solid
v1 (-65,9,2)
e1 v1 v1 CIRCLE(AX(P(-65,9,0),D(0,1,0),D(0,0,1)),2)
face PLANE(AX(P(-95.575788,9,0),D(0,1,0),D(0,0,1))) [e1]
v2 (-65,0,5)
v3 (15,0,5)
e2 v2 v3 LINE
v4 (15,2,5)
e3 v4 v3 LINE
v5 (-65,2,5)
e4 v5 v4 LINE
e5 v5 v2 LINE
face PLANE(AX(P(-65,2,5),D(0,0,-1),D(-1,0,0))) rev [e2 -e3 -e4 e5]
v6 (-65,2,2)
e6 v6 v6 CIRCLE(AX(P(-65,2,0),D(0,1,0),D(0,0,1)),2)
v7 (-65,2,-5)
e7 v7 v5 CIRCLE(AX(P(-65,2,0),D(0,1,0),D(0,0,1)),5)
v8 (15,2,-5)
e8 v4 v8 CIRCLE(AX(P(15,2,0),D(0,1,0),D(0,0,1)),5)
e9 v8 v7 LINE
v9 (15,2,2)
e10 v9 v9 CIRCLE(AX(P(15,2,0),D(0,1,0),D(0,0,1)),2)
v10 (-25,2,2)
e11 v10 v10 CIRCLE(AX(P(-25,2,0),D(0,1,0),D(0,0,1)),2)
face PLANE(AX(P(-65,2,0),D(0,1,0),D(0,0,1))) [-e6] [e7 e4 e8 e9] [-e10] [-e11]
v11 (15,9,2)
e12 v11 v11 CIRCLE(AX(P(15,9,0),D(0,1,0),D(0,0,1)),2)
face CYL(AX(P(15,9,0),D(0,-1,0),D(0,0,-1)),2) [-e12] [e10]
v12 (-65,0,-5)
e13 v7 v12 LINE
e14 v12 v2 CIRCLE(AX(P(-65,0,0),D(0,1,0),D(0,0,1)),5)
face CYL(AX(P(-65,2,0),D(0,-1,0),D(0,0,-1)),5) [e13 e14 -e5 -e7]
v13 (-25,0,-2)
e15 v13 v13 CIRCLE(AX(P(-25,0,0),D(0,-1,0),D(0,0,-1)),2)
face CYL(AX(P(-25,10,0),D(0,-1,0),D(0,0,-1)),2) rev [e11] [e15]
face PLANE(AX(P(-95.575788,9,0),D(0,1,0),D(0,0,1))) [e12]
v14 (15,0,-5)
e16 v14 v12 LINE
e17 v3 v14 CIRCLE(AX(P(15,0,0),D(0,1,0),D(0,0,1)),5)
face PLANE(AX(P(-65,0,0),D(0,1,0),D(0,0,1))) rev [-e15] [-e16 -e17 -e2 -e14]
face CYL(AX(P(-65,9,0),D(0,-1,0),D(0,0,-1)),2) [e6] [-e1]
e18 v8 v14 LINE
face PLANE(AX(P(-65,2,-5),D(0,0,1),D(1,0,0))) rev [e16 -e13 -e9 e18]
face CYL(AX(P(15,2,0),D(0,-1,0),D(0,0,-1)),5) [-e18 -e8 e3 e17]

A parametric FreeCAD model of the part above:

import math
import FreeCAD as App
import Part
import Sketcher

V = App.Vector
Q = App.Units.Quantity

doc = App.newDocument("Part")
params = doc.addObject("Spreadsheet::Sheet", "Params")
for row, (alias, value) in enumerate([
    ("sketch1_radius", "5 mm"),
    ("sketch1_width", "80 mm"),
    ("pad1_length", "2 mm"),
    ("sketch2_diameter", "4 mm"),
    ("pad2_length", "7 mm"),
    ("sketch3_radius", "2 mm"),
    ("pocket1_length", "10 mm"),
], start=1):
    params.set(f"A{row}", alias)
    params.set(f"B{row}", "=" + value)
    params.setAlias(f"B{row}", alias)

body = doc.addObject("PartDesign::Body", "Body")

# Sketch on XZ plane
sketch1 = body.newObject("Sketcher::SketchObject", "Sketch")
sketch1.AttachmentSupport = (doc.getObject("XZ_Plane"), [""])
sketch1.MapMode = "FlatFace"
sketch1.addGeometry([
    Part.LineSegment(V(15, -5, 0), V(-65, -5, 0)),
    Part.ArcOfCircle(Part.Circle(V(-65, 0, 0), V(0, 0, 1), 5), math.radians(90), math.radians(270)),
    Part.LineSegment(V(-65, 5, 0), V(15, 5, 0)),
    Part.ArcOfCircle(Part.Circle(V(15, 0, 0), V(0, 0, 1), 5), math.radians(-90), math.radians(90)),
], False)
sketch1.addConstraint([
    Sketcher.Constraint("Tangent", 0, 2, 1, 2),
    Sketcher.Constraint("Tangent", 1, 1, 2, 1),
    Sketcher.Constraint("Tangent", 2, 2, 3, 2),
    Sketcher.Constraint("Tangent", 3, 1, 0, 1),
    Sketcher.Constraint("Horizontal", 0),
    Sketcher.Constraint("Horizontal", 2),
    Sketcher.Constraint("PointOnObject", 1, 3, -1),
    Sketcher.Constraint("Radius", 1, Q("5 mm")),
    Sketcher.Constraint("DistanceX", 0, 2, 0, 1, Q("80 mm")),
    Sketcher.Constraint("DistanceX", 1, 3, -1, 1, Q("65 mm")),
])
sketch1.setExpression("Constraints[7]", "Params.sketch1_radius")
sketch1.setExpression("Constraints[8]", "Params.sketch1_width")
pad1 = body.newObject("PartDesign::Pad", "Pad")
pad1.Profile = sketch1
pad1.setExpression("Length", "Params.pad1_length")
pad1.Reversed = True

# Sketch on XZ plane
sketch2 = body.newObject("Sketcher::SketchObject", "Sketch001")
sketch2.AttachmentSupport = (doc.getObject("XZ_Plane"), [""])
sketch2.MapMode = "FlatFace"
sketch2.AttachmentOffset = App.Placement(V(0, 0, -2), App.Rotation())
sketch2.addGeometry([
    Part.Circle(V(15, 0, 0), V(0, 0, 1), 2),
    Part.ArcOfCircle(Part.Circle(V(-65, 0, 0), V(0, 0, 1), 2), math.radians(-90), math.radians(0)),
    Part.ArcOfCircle(Part.Circle(V(-65, 0, 0), V(0, 0, 1), 2), math.radians(90), math.radians(270)),
    Part.ArcOfCircle(Part.Circle(V(-65, 0, 0), V(0, 0, 1), 2), math.radians(0), math.radians(90)),
], False)
sketch2.addConstraint([
    Sketcher.Constraint("Tangent", 1, 1, 2, 2),
    Sketcher.Constraint("Tangent", 2, 1, 3, 2),
    Sketcher.Constraint("Tangent", 3, 1, 1, 2),
    Sketcher.Constraint("Equal", 0, 1),
    Sketcher.Constraint("Symmetric", 1, 1, 2, 1, -1),
    Sketcher.Constraint("PointOnObject", 0, 3, -1),
    Sketcher.Constraint("PointOnObject", 3, 1, -1),
    Sketcher.Constraint("Vertical", 3, 3, 1, 1),
    Sketcher.Constraint("Diameter", 0, Q("4 mm")),
    Sketcher.Constraint("DistanceX", -1, 1, 0, 3, Q("15 mm")),
    Sketcher.Constraint("DistanceX", 1, 3, -1, 1, Q("65 mm")),
])
sketch2.setExpression("Constraints[8]", "Params.sketch2_diameter")
pad2 = body.newObject("PartDesign::Pad", "Pad001")
pad2.Profile = sketch2
pad2.setExpression("Length", "Params.pad2_length")
pad2.Reversed = True

# Sketch on XZ plane
sketch3 = body.newObject("Sketcher::SketchObject", "Sketch002")
sketch3.AttachmentSupport = (doc.getObject("XZ_Plane"), [""])
sketch3.MapMode = "FlatFace"
sketch3.addGeometry([
    Part.ArcOfCircle(Part.Circle(V(-25, 0, 0), V(0, 0, 1), 2), math.radians(7), math.radians(187)),
    Part.ArcOfCircle(Part.Circle(V(-25, 0, 0), V(0, 0, 1), 2), math.radians(-173), math.radians(0)),
    Part.ArcOfCircle(Part.Circle(V(-25, 0, 0), V(0, 0, 1), 2), math.radians(0), math.radians(7.13)),
], False)
sketch3.addConstraint([
    Sketcher.Constraint("Tangent", 0, 2, 1, 1),
    Sketcher.Constraint("Tangent", 1, 2, 2, 1),
    Sketcher.Constraint("Tangent", 2, 2, 0, 1),
    Sketcher.Constraint("PointOnObject", 0, 3, -1),
    Sketcher.Constraint("PointOnObject", 1, 2, -1),
    Sketcher.Constraint("Radius", 0, Q("2 mm")),
    Sketcher.Constraint("DistanceX", 0, 3, -1, 1, Q("25 mm")),
    Sketcher.Constraint("DistanceY", 0, 2, -1, 1, Q("0.248069 mm")),
    Sketcher.Constraint("DistanceY", -1, 1, 2, 2, Q("0.248069 mm")),
])
sketch3.setExpression("Constraints[5]", "Params.sketch3_radius")
pocket1 = body.newObject("PartDesign::Pocket", "Pocket")
pocket1.Profile = sketch3
pocket1.setExpression("Length", "Params.pocket1_length")

doc.recompute()
